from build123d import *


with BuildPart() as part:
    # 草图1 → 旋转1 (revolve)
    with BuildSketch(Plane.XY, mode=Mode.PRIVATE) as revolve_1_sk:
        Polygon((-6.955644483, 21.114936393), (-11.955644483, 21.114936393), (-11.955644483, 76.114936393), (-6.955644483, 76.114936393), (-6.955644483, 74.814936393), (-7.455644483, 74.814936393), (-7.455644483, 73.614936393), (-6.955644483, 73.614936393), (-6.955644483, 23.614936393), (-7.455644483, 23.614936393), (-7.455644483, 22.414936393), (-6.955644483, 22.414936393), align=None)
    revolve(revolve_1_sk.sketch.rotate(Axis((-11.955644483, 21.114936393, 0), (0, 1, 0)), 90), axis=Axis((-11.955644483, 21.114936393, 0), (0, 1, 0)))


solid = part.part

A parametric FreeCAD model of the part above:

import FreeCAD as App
import Part
import Sketcher

V = App.Vector
Q = App.Units.Quantity

doc = App.newDocument("Part")
body = doc.addObject("PartDesign::Body", "Body")

sketch1 = doc.addObject("Sketcher::SketchObject", "Sketch")
body.addObject(sketch1)
sketch1.AttachmentSupport = (doc.XY_Plane, [""])
sketch1.MapMode = "FlatFace"
sketch1.addGeometry(Part.LineSegment(V(-12, 21.1, 0), V(-7, 21.1, 0)), False)
sketch1.addGeometry(Part.LineSegment(V(-7, 21.1, 0), V(-7, 22.4, 0)), False)
sketch1.addGeometry(Part.LineSegment(V(-7, 22.4, 0), V(-7.5, 22.4, 0)), False)
sketch1.addGeometry(Part.LineSegment(V(-7.5, 22.4, 0), V(-7.5, 23.6, 0)), False)
sketch1.addGeometry(Part.LineSegment(V(-7.5, 23.6, 0), V(-7, 23.6, 0)), False)
sketch1.addGeometry(Part.LineSegment(V(-7, 23.6, 0), V(-7, 73.6, 0)), False)
sketch1.addGeometry(Part.LineSegment(V(-7, 73.6, 0), V(-7.5, 73.6, 0)), False)
sketch1.addGeometry(Part.LineSegment(V(-7.5, 73.6, 0), V(-7.5, 74.8, 0)), False)
sketch1.addGeometry(Part.LineSegment(V(-7.5, 74.8, 0), V(-7, 74.8, 0)), False)
sketch1.addGeometry(Part.LineSegment(V(-7, 74.8, 0), V(-7, 76.1, 0)), False)
sketch1.addGeometry(Part.LineSegment(V(-7, 76.1, 0), V(-12, 76.1, 0)), False)
sketch1.addGeometry(Part.LineSegment(V(-12, 76.1, 0), V(-12, 21.1, 0)), False)
sketch1.addGeometry(Part.LineSegment(V(-12, 21.1, 0), V(-12, 76.1, 0)), True)
sketch1.addConstraint(Sketcher.Constraint("Coincident", 0, 2, 1, 1))
sketch1.addConstraint(Sketcher.Constraint("Coincident", 1, 2, 2, 1))
sketch1.addConstraint(Sketcher.Constraint("Coincident", 2, 2, 3, 1))
sketch1.addConstraint(Sketcher.Constraint("Coincident", 3, 2, 4, 1))
sketch1.addConstraint(Sketcher.Constraint("Coincident", 4, 2, 5, 1))
sketch1.addConstraint(Sketcher.Constraint("Coincident", 5, 2, 6, 1))
sketch1.addConstraint(Sketcher.Constraint("Coincident", 6, 2, 7, 1))
sketch1.addConstraint(Sketcher.Constraint("Coincident", 7, 2, 8, 1))
sketch1.addConstraint(Sketcher.Constraint("Coincident", 8, 2, 9, 1))
sketch1.addConstraint(Sketcher.Constraint("Coincident", 9, 2, 10, 1))
sketch1.addConstraint(Sketcher.Constraint("Coincident", 10, 2, 11, 1))
sketch1.addConstraint(Sketcher.Constraint("Coincident", 11, 2, 0, 1))
sketch1.addConstraint(Sketcher.Constraint("Horizontal", 0))
sketch1.addConstraint(Sketcher.Constraint("Vertical", 1))
sketch1.addConstraint(Sketcher.Constraint("Horizontal", 2))
sketch1.addConstraint(Sketcher.Constraint("Vertical", 3))
sketch1.addConstraint(Sketcher.Constraint("Horizontal", 4))
sketch1.addConstraint(Sketcher.Constraint("Vertical", 5))
sketch1.addConstraint(Sketcher.Constraint("Horizontal", 6))
sketch1.addConstraint(Sketcher.Constraint("Vertical", 7))
sketch1.addConstraint(Sketcher.Constraint("Horizontal", 8))
sketch1.addConstraint(Sketcher.Constraint("Vertical", 9))
sketch1.addConstraint(Sketcher.Constraint("Horizontal", 10))
sketch1.addConstraint(Sketcher.Constraint("Vertical", 11))
sketch1.addConstraint(Sketcher.Constraint("Vertical", 12))
sketch1.addConstraint(Sketcher.Constraint("Coincident", 12, 1, 11, 2))
sketch1.addConstraint(Sketcher.Constraint("Horizontal", 9, 2, 12, 2))
sketch1.addConstraint(Sketcher.Constraint("Vertical", 1, 2, 4, 2))
sketch1.addConstraint(Sketcher.Constraint("Vertical", 3, 2, 6, 2))
sketch1.addConstraint(Sketcher.Constraint("Vertical", 5, 2, 8, 2))
sketch1.addConstraint(Sketcher.Constraint("Equal", 3, 7))
sketch1.addConstraint(Sketcher.Constraint("Equal", 1, 9))
sketch1.addConstraint(Sketcher.Constraint("DistanceX", 0, 1, 0, 2, Q("5 mm")))
sketch1.addConstraint(Sketcher.Constraint("DistanceY", 5, 1, 5, 2, Q("50 mm")))
sketch1.addConstraint(Sketcher.Constraint("DistanceY", 11, 2, 11, 1, Q("55 mm")))
sketch1.addConstraint(Sketcher.Constraint("DistanceX", 2, 2, 2, 1, Q("0.5 mm")))
sketch1.addConstraint(Sketcher.Constraint("DistanceY", 1, 1, 1, 2, Q("1.3 mm")))
sketch1.addConstraint(Sketcher.Constraint("DistanceX", 0, 2, -1, 1, Q("6.955644 mm")))
sketch1.addConstraint(Sketcher.Constraint("DistanceY", -1, 1, 0, 2, Q("21.114936 mm")))
revolution = doc.addObject("PartDesign::Revolution", "Revolution")
body.addObject(revolution)
revolution.Profile = sketch1
revolution.ReferenceAxis = (sketch1, ["Axis0"])
revolution.Angle = 360

doc.recompute()
